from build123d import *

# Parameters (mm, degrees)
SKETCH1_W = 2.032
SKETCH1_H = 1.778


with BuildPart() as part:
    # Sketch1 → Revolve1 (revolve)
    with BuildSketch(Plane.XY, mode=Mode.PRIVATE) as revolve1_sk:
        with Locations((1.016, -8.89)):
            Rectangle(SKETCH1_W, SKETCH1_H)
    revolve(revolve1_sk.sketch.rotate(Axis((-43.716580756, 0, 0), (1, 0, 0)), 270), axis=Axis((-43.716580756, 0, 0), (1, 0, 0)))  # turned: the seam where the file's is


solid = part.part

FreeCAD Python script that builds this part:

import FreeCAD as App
import Part
import Sketcher
Q = App.Units.Quantity

doc = App.newDocument("Part")
params = doc.addObject("Spreadsheet::Sheet", "Params")
for row, (alias, value) in enumerate([
    ("sketch1_width", "0.08 in"),
    ("sketch1_height", "0.07 in"),
    ("revolution_angle", "360 deg"),
], start=1):
    params.set(f"A{row}", alias)
    params.set(f"B{row}", "=" + value)
    params.setAlias(f"B{row}", alias)

body = doc.addObject("PartDesign::Body", "Body")

sketch1 = body.newObject("Sketcher::SketchObject", "Sketch")
sketch1.AttachmentSupport = (doc.getObject("XY_Plane"), [""])
sketch1.MapMode = "FlatFace"
sketch1.addGeometry(Part.LineSegment(App.Vector(0, -8, 0), App.Vector(0, -9.8, 0)), False)
sketch1.addGeometry(Part.LineSegment(App.Vector(0, -9.8, 0), App.Vector(2, -9.8, 0)), False)
sketch1.addGeometry(Part.LineSegment(App.Vector(2, -9.8, 0), App.Vector(2, -8, 0)), False)
sketch1.addGeometry(Part.LineSegment(App.Vector(2, -8, 0), App.Vector(0, -8, 0)), False)
sketch1.addConstraint(Sketcher.Constraint("Coincident", 0, 2, 1, 1))
sketch1.addConstraint(Sketcher.Constraint("Coincident", 1, 2, 2, 1))
sketch1.addConstraint(Sketcher.Constraint("Coincident", 2, 2, 3, 1))
sketch1.addConstraint(Sketcher.Constraint("Coincident", 3, 2, 0, 1))
sketch1.addConstraint(Sketcher.Constraint("Vertical", 0))
sketch1.addConstraint(Sketcher.Constraint("Horizontal", 1))
sketch1.addConstraint(Sketcher.Constraint("Vertical", 2))
sketch1.addConstraint(Sketcher.Constraint("Horizontal", 3))
sketch1.addConstraint(Sketcher.Constraint("PointOnObject", 0, 2, -2))
sketch1.addConstraint(Sketcher.Constraint("DistanceX", 1, 1, 1, 2, Q("0.08 in")))
sketch1.addConstraint(Sketcher.Constraint("DistanceY", 0, 2, 0, 1, Q("0.07 in")))
sketch1.addConstraint(Sketcher.Constraint("DistanceY", 0, 2, -1, 1, Q("0.385 in")))
sketch1.setExpression("Constraints[9]", "Params.sketch1_width")
sketch1.setExpression("Constraints[10]", "Params.sketch1_height")
revolution = body.newObject("PartDesign::Revolution", "Revolution")
revolution.Profile = sketch1
revolution.ReferenceAxis = (sketch1, ["H_Axis"])
revolution.setExpression("Angle", "Params.revolution_angle")

doc.recompute()
